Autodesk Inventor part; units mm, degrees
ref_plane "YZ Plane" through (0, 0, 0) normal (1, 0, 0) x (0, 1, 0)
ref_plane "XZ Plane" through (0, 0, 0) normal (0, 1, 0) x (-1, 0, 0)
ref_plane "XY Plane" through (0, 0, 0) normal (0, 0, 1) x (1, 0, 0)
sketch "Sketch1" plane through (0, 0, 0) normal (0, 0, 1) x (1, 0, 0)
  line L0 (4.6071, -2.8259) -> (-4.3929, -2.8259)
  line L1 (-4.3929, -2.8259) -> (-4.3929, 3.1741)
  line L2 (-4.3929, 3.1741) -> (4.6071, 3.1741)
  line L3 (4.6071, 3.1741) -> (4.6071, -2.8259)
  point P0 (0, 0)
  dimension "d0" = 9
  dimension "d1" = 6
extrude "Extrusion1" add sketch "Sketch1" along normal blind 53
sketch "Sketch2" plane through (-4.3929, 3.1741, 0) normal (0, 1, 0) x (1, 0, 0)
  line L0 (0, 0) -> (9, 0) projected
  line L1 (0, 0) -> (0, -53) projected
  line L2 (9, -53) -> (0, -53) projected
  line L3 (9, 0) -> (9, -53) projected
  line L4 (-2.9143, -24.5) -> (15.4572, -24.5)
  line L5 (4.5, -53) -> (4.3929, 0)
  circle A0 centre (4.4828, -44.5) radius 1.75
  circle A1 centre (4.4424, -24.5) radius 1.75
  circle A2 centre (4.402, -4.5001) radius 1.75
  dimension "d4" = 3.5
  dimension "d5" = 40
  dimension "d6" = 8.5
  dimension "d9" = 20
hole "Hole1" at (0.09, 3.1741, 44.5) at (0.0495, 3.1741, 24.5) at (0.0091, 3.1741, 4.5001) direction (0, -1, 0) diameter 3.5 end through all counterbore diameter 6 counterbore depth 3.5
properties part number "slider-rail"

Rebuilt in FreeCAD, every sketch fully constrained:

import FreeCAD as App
import Part
import Sketcher
Q = App.Units.Quantity

doc = App.newDocument("Part")
body = doc.addObject("PartDesign::Body", "Body")

sketch1 = body.newObject("Sketcher::SketchObject", "Sketch")
sketch1.AttachmentSupport = (doc.getObject("XY_Plane"), [""])
sketch1.MapMode = "FlatFace"
sketch1.addGeometry(Part.LineSegment(App.Vector(-4, -3, 0), App.Vector(5, -3, 0)), False)
sketch1.addGeometry(Part.LineSegment(App.Vector(5, -3, 0), App.Vector(5, 3, 0)), False)
sketch1.addGeometry(Part.LineSegment(App.Vector(5, 3, 0), App.Vector(-4, 3, 0)), False)
sketch1.addGeometry(Part.LineSegment(App.Vector(-4, 3, 0), App.Vector(-4, -3, 0)), False)
sketch1.addConstraint(Sketcher.Constraint("Coincident", 0, 2, 1, 1))
sketch1.addConstraint(Sketcher.Constraint("Coincident", 1, 2, 2, 1))
sketch1.addConstraint(Sketcher.Constraint("Coincident", 2, 2, 3, 1))
sketch1.addConstraint(Sketcher.Constraint("Coincident", 3, 2, 0, 1))
sketch1.addConstraint(Sketcher.Constraint("Horizontal", 0))
sketch1.addConstraint(Sketcher.Constraint("Vertical", 1))
sketch1.addConstraint(Sketcher.Constraint("Horizontal", 2))
sketch1.addConstraint(Sketcher.Constraint("Vertical", 3))
sketch1.addConstraint(Sketcher.Constraint("DistanceX", 0, 1, 0, 2, Q("9 mm")))
sketch1.addConstraint(Sketcher.Constraint("DistanceY", 1, 1, 1, 2, Q("6 mm")))
sketch1.addConstraint(Sketcher.Constraint("DistanceX", -1, 1, 0, 2, Q("4.607 mm")))
sketch1.addConstraint(Sketcher.Constraint("DistanceY", 0, 2, -1, 1, Q("2.826 mm")))
pad1 = body.newObject("PartDesign::Pad", "Pad")
pad1.Profile = sketch1
pad1.Length = 53

sketch2 = body.newObject("Sketcher::SketchObject", "Sketch001")
sketch2.AttachmentSupport = (doc.getObject("XZ_Plane"), [""])
sketch2.MapMode = "FlatFace"
sketch2.AttachmentOffset = App.Placement(App.Vector(0, 0, -3.1741), App.Rotation())
sketch2.addGeometry(Part.Circle(App.Vector(0.1, 44.5, 0), App.Vector(0, 0, 1), 1.8), False)
sketch2.addGeometry(Part.Circle(App.Vector(0, 24.5, 0), App.Vector(0, 0, 1), 1.8), False)
sketch2.addGeometry(Part.Circle(App.Vector(0, 4.5, 0), App.Vector(0, 0, 1), 1.8), False)
sketch2.addConstraint(Sketcher.Constraint("Equal", 0, 1))
sketch2.addConstraint(Sketcher.Constraint("Equal", 1, 2))
sketch2.addConstraint(Sketcher.Constraint("Diameter", 0, Q("3.5 mm")))
sketch2.addConstraint(Sketcher.Constraint("DistanceY", 1, 3, 0, 3, Q("20 mm")))
sketch2.addConstraint(Sketcher.Constraint("DistanceY", 2, 3, 1, 3, Q("20 mm")))
sketch2.addConstraint(Sketcher.Constraint("DistanceY", -1, 1, 0, 3, Q("44.5 mm")))
sketch2.addConstraint(Sketcher.Constraint("DistanceX", -1, 1, 0, 3, Q("0.09 mm")))
sketch2.addConstraint(Sketcher.Constraint("DistanceX", -1, 1, 2, 3, Q("0.009 mm")))
sketch2.addConstraint(Sketcher.Constraint("DistanceX", -1, 1, 1, 3, Q("0.0495 mm")))
doc.recompute()
hole = body.newObject("PartDesign::Hole", "Hole")
hole.Profile = sketch2
hole.ThreadType = "None"
hole.Diameter = 3.5
hole.DepthType = "ThroughAll"
hole.HoleCutType = "Counterbore"
hole.HoleCutDiameter = 6
hole.HoleCutDepth = 3.5
hole.Reversed = True

doc.recompute()
